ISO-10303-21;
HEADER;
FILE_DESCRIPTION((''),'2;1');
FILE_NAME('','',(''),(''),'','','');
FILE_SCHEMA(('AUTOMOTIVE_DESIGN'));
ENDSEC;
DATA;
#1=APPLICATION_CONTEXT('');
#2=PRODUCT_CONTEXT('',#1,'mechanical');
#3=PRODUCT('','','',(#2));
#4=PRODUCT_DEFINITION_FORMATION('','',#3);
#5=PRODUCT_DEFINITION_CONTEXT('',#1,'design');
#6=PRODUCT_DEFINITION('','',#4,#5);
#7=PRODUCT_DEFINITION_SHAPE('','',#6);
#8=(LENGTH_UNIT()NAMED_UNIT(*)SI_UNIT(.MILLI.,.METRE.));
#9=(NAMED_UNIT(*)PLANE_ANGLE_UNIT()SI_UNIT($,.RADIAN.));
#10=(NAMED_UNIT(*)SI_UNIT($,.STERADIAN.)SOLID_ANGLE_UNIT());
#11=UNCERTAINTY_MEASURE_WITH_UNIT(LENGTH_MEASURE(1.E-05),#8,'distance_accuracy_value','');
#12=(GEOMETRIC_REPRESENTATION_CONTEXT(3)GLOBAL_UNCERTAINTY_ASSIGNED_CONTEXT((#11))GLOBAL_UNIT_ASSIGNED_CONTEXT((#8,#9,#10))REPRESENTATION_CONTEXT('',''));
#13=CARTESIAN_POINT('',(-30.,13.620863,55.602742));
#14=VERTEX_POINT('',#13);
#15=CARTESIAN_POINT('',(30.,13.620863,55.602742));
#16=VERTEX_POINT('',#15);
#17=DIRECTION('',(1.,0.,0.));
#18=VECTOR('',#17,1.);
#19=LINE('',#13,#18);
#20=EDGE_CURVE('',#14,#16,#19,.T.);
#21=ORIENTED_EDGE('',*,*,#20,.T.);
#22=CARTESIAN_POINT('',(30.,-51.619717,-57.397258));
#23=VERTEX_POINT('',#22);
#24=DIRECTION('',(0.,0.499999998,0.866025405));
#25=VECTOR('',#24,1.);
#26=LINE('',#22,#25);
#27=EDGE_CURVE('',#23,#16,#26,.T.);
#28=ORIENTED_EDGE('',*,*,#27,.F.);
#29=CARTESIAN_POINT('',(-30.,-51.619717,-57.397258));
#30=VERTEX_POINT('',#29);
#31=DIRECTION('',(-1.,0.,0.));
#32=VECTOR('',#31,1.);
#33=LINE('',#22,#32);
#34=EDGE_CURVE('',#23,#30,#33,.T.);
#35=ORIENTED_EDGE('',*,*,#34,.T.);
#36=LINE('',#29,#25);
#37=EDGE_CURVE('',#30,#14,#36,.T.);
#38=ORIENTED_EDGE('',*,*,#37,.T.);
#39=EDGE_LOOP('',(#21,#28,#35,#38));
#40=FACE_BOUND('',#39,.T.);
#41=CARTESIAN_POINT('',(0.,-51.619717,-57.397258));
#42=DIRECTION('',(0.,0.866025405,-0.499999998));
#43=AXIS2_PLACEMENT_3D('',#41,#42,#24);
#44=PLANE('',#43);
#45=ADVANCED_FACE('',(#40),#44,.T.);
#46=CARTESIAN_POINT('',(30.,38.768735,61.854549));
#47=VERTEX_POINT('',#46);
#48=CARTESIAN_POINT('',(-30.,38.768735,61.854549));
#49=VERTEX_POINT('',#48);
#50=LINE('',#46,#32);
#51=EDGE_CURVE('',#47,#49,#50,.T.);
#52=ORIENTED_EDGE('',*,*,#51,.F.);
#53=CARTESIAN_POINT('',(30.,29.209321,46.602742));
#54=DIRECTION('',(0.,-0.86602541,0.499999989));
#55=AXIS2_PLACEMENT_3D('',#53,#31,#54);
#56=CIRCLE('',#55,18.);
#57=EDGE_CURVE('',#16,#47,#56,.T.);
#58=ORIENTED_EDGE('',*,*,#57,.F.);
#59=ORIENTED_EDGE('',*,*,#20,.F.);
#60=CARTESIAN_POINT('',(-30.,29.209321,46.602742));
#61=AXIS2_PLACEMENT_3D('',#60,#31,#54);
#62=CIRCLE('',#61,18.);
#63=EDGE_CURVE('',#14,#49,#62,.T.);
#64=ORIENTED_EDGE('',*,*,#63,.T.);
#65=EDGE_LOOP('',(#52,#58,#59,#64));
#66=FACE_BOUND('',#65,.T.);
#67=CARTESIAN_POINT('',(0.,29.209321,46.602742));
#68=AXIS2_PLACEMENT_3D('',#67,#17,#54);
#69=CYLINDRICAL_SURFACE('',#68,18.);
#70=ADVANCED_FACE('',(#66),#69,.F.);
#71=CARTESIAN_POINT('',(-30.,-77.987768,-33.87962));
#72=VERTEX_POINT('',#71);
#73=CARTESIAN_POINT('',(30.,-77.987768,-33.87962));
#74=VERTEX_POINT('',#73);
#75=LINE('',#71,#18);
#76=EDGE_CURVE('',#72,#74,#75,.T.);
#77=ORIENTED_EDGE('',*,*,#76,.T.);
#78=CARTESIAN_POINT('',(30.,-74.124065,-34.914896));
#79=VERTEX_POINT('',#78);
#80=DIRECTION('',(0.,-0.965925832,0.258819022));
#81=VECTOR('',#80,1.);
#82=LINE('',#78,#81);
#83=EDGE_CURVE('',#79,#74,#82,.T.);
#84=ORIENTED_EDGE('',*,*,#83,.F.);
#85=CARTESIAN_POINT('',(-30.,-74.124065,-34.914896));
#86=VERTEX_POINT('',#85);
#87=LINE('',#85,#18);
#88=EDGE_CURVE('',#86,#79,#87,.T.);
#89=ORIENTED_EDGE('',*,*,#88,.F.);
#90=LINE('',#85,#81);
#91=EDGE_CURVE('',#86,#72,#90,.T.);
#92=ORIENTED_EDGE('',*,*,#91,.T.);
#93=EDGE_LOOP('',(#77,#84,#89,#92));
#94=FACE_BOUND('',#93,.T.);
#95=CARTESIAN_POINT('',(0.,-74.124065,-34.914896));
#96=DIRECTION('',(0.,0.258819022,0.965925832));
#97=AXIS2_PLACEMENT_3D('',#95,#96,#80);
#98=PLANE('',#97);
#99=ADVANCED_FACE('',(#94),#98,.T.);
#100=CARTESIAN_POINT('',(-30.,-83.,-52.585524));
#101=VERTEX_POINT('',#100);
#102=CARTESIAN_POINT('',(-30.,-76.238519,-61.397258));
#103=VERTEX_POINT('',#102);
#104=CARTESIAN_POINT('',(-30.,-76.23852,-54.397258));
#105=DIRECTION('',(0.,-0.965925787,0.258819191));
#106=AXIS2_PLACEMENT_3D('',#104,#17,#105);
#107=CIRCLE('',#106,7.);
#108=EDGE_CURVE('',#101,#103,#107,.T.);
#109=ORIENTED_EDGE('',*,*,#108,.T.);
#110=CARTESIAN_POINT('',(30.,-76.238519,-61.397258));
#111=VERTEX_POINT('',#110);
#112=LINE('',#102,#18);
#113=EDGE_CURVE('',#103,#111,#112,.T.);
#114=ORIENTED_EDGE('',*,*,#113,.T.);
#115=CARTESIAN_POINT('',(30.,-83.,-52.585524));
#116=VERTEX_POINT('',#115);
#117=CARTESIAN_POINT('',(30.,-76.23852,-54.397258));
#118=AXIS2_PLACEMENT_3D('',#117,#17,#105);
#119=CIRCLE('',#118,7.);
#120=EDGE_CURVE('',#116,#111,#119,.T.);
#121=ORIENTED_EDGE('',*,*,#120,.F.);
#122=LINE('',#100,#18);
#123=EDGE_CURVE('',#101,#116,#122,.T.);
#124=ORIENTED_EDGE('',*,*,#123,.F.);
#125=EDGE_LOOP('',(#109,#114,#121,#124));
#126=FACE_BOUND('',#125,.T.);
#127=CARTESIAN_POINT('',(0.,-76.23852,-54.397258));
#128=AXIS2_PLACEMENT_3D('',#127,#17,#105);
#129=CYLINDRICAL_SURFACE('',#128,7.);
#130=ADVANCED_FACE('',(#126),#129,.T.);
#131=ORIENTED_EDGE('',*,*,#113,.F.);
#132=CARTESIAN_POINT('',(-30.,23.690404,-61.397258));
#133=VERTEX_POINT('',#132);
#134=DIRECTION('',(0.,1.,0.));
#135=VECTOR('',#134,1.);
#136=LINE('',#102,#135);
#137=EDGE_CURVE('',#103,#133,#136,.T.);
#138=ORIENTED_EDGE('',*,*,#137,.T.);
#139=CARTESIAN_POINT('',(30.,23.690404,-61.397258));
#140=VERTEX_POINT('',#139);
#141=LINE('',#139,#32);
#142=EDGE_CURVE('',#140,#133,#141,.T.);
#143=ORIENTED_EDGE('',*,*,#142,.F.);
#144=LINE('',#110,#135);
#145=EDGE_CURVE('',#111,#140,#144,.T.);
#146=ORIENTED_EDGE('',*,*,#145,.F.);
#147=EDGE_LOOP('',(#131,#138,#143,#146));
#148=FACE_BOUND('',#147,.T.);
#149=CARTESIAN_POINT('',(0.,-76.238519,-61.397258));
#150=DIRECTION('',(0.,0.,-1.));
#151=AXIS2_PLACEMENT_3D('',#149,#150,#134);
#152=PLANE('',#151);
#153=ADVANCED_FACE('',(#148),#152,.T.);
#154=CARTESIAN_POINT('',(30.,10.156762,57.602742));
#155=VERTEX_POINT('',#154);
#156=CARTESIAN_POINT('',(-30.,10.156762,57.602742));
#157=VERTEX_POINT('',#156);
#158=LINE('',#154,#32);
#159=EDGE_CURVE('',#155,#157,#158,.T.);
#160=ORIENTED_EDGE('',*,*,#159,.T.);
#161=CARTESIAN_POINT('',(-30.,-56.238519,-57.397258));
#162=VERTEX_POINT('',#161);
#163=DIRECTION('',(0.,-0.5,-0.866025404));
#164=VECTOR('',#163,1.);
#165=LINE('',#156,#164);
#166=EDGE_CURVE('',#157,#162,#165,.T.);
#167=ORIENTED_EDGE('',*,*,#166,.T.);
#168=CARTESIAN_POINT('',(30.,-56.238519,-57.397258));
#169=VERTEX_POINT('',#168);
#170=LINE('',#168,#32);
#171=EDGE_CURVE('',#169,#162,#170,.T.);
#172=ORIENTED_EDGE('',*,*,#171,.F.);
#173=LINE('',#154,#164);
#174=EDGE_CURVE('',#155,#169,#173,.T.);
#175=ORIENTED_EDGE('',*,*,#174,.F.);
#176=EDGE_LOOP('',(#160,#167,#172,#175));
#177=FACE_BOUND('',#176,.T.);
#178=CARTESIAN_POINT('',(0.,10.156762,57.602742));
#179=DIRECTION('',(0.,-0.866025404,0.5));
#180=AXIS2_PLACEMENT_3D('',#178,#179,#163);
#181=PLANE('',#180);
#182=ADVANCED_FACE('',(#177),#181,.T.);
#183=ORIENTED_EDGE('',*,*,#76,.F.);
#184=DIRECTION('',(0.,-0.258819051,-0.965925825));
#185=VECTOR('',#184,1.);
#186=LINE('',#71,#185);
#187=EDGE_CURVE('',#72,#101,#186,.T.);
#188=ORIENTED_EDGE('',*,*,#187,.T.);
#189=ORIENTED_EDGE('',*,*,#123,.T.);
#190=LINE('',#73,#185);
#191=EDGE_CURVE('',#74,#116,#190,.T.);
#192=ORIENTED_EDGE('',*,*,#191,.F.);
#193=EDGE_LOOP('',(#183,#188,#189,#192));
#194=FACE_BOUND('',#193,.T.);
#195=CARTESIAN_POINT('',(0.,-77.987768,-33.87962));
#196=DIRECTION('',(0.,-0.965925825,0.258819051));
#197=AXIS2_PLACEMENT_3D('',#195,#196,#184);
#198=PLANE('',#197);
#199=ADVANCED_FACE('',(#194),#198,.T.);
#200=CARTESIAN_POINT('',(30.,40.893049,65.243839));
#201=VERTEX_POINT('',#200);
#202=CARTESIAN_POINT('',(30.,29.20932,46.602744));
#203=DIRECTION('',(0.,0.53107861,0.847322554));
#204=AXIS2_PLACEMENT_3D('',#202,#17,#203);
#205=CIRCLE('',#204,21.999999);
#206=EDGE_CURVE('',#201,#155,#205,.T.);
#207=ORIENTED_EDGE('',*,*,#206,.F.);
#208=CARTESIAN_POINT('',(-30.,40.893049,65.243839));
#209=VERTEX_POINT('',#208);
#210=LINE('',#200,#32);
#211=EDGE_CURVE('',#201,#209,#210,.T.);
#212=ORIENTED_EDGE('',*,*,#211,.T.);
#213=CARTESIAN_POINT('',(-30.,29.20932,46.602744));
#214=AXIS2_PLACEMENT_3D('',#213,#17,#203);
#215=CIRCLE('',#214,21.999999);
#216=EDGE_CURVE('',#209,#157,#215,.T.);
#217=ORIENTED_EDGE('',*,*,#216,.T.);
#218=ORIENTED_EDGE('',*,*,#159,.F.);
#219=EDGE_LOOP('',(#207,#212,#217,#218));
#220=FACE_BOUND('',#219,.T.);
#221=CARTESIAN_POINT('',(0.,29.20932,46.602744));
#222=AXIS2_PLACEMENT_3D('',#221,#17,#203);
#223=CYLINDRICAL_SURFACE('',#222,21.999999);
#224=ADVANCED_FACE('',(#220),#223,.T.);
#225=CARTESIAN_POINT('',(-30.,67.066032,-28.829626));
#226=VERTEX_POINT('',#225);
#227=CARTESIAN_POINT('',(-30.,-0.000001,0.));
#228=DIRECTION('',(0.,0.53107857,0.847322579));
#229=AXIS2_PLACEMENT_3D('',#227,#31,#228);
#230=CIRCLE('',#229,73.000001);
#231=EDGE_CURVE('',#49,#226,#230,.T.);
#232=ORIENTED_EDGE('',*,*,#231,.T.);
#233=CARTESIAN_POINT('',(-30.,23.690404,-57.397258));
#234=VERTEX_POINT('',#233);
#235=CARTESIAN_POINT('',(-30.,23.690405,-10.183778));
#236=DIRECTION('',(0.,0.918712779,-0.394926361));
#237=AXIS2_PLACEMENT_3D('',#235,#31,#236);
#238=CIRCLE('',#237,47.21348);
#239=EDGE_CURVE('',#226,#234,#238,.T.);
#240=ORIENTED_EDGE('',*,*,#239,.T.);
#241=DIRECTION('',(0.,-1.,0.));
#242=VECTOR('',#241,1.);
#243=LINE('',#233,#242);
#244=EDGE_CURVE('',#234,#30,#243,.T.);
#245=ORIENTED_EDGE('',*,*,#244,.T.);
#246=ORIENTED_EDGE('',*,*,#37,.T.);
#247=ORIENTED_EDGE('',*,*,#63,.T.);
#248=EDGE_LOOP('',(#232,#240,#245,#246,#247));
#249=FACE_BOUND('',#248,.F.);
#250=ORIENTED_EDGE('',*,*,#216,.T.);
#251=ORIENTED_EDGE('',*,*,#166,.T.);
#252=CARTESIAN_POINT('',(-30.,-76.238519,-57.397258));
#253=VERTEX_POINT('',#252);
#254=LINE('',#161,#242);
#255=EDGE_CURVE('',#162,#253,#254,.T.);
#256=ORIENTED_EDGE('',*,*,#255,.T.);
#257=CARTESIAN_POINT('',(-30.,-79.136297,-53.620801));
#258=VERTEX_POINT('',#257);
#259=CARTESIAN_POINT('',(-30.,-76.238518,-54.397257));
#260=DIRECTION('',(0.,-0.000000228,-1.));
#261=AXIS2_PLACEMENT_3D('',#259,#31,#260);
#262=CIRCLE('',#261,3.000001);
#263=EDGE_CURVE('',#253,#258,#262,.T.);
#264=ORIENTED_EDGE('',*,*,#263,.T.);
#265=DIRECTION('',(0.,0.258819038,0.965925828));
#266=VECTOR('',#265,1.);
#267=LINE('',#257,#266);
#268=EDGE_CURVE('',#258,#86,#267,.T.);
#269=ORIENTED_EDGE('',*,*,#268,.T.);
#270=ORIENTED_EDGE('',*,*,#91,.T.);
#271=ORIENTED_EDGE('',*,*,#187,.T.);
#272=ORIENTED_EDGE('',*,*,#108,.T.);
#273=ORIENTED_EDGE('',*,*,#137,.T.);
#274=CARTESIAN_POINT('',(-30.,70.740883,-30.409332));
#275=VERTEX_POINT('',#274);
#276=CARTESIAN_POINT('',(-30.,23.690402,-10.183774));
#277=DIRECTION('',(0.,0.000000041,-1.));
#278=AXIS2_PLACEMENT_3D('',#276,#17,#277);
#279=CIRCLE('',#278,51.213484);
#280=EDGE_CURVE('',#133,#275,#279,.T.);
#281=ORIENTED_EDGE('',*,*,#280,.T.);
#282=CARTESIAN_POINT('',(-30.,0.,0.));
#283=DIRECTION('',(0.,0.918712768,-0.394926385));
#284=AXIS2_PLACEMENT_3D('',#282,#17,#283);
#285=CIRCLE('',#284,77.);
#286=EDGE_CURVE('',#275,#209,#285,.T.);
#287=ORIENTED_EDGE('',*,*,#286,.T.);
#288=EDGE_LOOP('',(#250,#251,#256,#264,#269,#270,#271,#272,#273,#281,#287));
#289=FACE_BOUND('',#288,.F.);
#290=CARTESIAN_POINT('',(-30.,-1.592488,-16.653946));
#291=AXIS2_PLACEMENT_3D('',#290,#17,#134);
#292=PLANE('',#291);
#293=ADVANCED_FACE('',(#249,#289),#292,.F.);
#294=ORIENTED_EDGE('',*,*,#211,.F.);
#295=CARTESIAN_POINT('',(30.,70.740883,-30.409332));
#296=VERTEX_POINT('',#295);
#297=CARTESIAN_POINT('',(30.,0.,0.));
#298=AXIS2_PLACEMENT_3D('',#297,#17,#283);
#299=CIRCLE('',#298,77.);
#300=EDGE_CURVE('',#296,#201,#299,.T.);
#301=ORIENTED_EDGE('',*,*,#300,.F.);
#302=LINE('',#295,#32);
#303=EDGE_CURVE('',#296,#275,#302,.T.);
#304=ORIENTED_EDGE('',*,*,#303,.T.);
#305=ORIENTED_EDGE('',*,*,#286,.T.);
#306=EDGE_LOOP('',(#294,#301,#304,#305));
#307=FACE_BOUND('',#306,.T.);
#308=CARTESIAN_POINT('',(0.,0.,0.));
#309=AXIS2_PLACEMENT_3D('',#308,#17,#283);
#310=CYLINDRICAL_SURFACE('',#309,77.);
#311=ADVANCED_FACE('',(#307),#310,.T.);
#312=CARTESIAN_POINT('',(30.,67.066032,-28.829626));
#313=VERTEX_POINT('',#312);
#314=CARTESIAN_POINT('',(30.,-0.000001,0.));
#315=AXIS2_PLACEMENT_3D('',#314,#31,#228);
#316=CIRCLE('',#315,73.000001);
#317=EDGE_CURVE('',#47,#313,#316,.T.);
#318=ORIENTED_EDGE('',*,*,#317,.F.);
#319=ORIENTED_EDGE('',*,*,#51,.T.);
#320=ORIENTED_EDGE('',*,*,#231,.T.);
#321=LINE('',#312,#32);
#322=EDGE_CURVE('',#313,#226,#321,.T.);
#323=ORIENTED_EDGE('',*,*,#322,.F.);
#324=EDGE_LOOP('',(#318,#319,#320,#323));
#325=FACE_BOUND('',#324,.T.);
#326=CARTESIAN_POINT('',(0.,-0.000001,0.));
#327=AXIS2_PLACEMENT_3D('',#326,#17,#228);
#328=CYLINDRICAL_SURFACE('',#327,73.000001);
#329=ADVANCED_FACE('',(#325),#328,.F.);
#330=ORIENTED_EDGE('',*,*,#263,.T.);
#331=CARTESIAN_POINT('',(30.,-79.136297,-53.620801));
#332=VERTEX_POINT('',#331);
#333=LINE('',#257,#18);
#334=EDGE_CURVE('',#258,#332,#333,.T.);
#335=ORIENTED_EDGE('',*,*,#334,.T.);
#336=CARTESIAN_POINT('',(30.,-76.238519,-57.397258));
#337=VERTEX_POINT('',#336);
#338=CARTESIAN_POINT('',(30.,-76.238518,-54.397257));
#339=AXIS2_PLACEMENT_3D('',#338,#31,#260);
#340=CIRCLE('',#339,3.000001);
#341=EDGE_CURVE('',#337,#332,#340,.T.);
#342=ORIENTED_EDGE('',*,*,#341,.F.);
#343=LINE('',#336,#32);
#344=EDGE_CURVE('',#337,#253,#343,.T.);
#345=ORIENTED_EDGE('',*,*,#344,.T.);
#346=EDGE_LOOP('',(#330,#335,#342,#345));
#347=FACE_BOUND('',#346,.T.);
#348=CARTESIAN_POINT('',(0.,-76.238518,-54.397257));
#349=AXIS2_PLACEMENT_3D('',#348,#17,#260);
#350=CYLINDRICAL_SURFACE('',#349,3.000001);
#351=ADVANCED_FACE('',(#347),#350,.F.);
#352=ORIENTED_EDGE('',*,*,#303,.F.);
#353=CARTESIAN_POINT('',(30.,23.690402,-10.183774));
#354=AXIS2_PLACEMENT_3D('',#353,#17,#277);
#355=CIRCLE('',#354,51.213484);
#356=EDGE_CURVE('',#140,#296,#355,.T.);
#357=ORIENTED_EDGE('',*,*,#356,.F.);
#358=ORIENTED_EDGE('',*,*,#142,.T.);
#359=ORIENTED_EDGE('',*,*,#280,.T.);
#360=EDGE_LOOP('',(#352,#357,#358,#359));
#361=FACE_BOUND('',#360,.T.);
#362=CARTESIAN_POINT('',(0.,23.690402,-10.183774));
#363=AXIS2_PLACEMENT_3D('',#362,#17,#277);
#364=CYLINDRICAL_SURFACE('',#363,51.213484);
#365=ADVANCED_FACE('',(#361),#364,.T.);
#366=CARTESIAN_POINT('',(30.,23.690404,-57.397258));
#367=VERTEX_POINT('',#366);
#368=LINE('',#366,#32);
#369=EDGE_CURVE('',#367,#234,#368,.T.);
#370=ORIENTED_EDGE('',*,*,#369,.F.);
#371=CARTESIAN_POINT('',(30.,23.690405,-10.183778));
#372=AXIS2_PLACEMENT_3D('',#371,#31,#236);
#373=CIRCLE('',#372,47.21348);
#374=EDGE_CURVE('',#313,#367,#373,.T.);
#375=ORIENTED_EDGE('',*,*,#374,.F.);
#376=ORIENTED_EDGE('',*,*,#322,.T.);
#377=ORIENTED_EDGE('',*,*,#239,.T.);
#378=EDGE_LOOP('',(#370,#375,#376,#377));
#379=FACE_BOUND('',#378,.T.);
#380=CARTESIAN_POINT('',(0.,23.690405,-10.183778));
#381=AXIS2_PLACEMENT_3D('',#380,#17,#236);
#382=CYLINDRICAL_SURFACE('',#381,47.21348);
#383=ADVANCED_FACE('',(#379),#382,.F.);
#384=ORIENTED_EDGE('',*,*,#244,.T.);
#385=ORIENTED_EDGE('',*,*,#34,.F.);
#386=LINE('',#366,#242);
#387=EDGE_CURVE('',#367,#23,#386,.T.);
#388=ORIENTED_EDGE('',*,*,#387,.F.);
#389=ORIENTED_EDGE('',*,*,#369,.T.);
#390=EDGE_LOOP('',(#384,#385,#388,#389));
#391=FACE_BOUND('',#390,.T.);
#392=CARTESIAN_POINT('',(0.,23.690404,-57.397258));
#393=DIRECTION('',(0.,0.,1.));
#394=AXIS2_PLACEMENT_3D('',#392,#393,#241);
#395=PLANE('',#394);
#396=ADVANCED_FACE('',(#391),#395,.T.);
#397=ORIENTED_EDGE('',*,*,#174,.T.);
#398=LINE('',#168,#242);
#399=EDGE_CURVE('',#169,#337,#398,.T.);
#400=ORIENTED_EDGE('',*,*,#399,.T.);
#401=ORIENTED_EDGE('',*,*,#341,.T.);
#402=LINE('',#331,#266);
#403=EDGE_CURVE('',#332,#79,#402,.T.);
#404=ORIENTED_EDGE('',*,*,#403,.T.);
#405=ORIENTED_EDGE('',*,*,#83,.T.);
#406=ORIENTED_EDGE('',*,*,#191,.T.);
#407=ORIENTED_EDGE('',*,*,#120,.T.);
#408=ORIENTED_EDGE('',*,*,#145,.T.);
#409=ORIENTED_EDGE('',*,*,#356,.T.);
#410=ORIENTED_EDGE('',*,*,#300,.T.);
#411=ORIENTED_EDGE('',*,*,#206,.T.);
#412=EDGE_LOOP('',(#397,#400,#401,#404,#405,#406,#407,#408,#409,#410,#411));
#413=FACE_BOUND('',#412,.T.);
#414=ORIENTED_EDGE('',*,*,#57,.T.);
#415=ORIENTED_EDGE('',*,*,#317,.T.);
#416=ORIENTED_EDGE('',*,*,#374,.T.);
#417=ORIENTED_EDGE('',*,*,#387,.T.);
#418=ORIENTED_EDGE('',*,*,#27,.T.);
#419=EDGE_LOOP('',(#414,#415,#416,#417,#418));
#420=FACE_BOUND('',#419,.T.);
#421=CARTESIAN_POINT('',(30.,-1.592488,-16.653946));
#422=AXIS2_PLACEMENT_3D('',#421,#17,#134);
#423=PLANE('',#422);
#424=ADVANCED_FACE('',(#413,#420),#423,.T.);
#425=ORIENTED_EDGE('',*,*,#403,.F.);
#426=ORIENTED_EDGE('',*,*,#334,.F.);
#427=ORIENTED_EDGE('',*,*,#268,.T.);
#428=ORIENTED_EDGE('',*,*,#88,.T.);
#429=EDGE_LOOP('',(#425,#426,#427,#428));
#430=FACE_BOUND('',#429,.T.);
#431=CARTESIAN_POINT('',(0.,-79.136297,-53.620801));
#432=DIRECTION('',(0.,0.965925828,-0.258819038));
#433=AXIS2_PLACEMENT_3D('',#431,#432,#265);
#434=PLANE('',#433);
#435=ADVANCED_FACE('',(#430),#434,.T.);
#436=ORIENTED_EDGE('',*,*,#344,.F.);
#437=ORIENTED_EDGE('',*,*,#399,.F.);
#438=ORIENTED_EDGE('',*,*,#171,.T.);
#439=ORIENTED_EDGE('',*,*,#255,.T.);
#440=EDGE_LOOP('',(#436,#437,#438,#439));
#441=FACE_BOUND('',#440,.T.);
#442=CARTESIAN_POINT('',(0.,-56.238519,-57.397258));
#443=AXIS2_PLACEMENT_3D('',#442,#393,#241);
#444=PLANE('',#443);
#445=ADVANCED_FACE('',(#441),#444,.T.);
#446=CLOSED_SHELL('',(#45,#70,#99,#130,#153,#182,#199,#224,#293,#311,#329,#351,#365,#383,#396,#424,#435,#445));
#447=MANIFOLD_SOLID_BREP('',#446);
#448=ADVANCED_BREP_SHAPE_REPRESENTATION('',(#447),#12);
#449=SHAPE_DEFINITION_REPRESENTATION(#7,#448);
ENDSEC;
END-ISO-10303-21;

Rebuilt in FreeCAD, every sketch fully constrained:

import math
import FreeCAD as App
import Part
import Sketcher
Q = App.Units.Quantity

doc = App.newDocument("Part")
body = doc.addObject("PartDesign::Body", "Body")

# Sketch on YZ plane
sketch1 = body.newObject("Sketcher::SketchObject", "Sketch")
sketch1.AttachmentSupport = (doc.getObject("YZ_Plane"), [""])
sketch1.MapMode = "FlatFace"
sketch1.addGeometry(Part.ArcOfCircle(Part.Circle(App.Vector(-76.2, -54.4, 0), App.Vector(0, 0, 1), 3), math.radians(165), math.radians(270)), False)
sketch1.addGeometry(Part.LineSegment(App.Vector(-79.1, -53.6, 0), App.Vector(-74.1, -34.9, 0)), False)
sketch1.addGeometry(Part.LineSegment(App.Vector(-74.1, -34.9, 0), App.Vector(-78, -33.9, 0)), False)
sketch1.addGeometry(Part.LineSegment(App.Vector(-78, -33.9, 0), App.Vector(-83, -52.6, 0)), False)
sketch1.addGeometry(Part.ArcOfCircle(Part.Circle(App.Vector(-76.2, -54.4, 0), App.Vector(0, 0, 1), 7), math.radians(165), math.radians(270)), False)
sketch1.addGeometry(Part.LineSegment(App.Vector(-76.2, -61.4, 0), App.Vector(23.7, -61.4, 0)), False)
sketch1.addGeometry(Part.ArcOfCircle(Part.Circle(App.Vector(23.7, -10.2, 0), App.Vector(0, 0, 1), 51.2), math.radians(-90), math.radians(-23)), False)
sketch1.addGeometry(Part.ArcOfCircle(Part.Circle(App.Vector(0, 0, 0), App.Vector(0, 0, 1), 77), math.radians(-23), math.radians(58)), False)
sketch1.addGeometry(Part.ArcOfCircle(Part.Circle(App.Vector(29.2, 46.6, 0), App.Vector(0, 0, 1), 22), math.radians(58), math.radians(150)), False)
sketch1.addGeometry(Part.LineSegment(App.Vector(10.2, 57.6, 0), App.Vector(-56.2, -57.4, 0)), False)
sketch1.addGeometry(Part.LineSegment(App.Vector(-56.2, -57.4, 0), App.Vector(-76.2, -57.4, 0)), False)
sketch1.addGeometry(Part.LineSegment(App.Vector(-51.6, -57.4, 0), App.Vector(13.6, 55.6, 0)), False)
sketch1.addGeometry(Part.ArcOfCircle(Part.Circle(App.Vector(29.2, 46.6, 0), App.Vector(0, 0, 1), 18), math.radians(58), math.radians(150)), False)
sketch1.addGeometry(Part.ArcOfCircle(Part.Circle(App.Vector(0, 0, 0), App.Vector(0, 0, 1), 73), math.radians(-23), math.radians(58)), False)
sketch1.addGeometry(Part.ArcOfCircle(Part.Circle(App.Vector(23.7, -10.2, 0), App.Vector(0, 0, 1), 47.2), math.radians(-90), math.radians(-23)), False)
sketch1.addGeometry(Part.LineSegment(App.Vector(23.7, -57.4, 0), App.Vector(-51.6, -57.4, 0)), False)
sketch1.addConstraint(Sketcher.Constraint("Tangent", 0, 1, 1, 1))
sketch1.addConstraint(Sketcher.Constraint("Coincident", 1, 2, 2, 1))
sketch1.addConstraint(Sketcher.Constraint("Coincident", 2, 2, 3, 1))
sketch1.addConstraint(Sketcher.Constraint("Tangent", 3, 2, 4, 1))
sketch1.addConstraint(Sketcher.Constraint("Tangent", 4, 2, 5, 1))
sketch1.addConstraint(Sketcher.Constraint("Tangent", 5, 2, 6, 1))
sketch1.addConstraint(Sketcher.Constraint("Tangent", 6, 2, 7, 1))
sketch1.addConstraint(Sketcher.Constraint("Tangent", 7, 2, 8, 1))
sketch1.addConstraint(Sketcher.Constraint("Tangent", 8, 2, 9, 1))
sketch1.addConstraint(Sketcher.Constraint("Coincident", 9, 2, 10, 1))
sketch1.addConstraint(Sketcher.Constraint("Tangent", 10, 2, 0, 2))
sketch1.addConstraint(Sketcher.Constraint("Tangent", 11, 2, 12, 2))
sketch1.addConstraint(Sketcher.Constraint("Tangent", 12, 1, 13, 2))
sketch1.addConstraint(Sketcher.Constraint("Tangent", 13, 1, 14, 2))
sketch1.addConstraint(Sketcher.Constraint("Tangent", 14, 1, 15, 1))
sketch1.addConstraint(Sketcher.Constraint("Coincident", 15, 2, 11, 1))
sketch1.addConstraint(Sketcher.Constraint("Horizontal", 5))
sketch1.addConstraint(Sketcher.Constraint("Horizontal", 10))
sketch1.addConstraint(Sketcher.Constraint("Horizontal", 15))
sketch1.addConstraint(Sketcher.Constraint("Coincident", 7, 3, -1, 1))
sketch1.addConstraint(Sketcher.Constraint("Coincident", 13, 3, -1, 1))
sketch1.addConstraint(Sketcher.Constraint("Coincident", 4, 3, 0, 3))
sketch1.addConstraint(Sketcher.Constraint("Coincident", 12, 3, 8, 3))
sketch1.addConstraint(Sketcher.Constraint("Coincident", 14, 3, 6, 3))
sketch1.addConstraint(Sketcher.Constraint("Perpendicular", 1, 2))
sketch1.addConstraint(Sketcher.Constraint("Perpendicular", 2, 3))
sketch1.addConstraint(Sketcher.Constraint("Parallel", 9, 11))
sketch1.addConstraint(Sketcher.Constraint("Horizontal", 10, 2, 14, 1))
sketch1.addConstraint(Sketcher.Constraint("Radius", 0, 3.000001))
sketch1.addConstraint(Sketcher.Constraint("Radius", 4, 7.0))
sketch1.addConstraint(Sketcher.Constraint("Radius", 7, 77.0))
sketch1.addConstraint(Sketcher.Constraint("Radius", 8, 21.999999))
sketch1.addConstraint(Sketcher.Constraint("DistanceX", 10, 2, 10, 1, 20.0))
sketch1.addConstraint(Sketcher.Constraint("Angle", 1, Q("75 deg")))
sketch1.addConstraint(Sketcher.Constraint("Angle", 9, Q("-120 deg")))
sketch1.addConstraint(Sketcher.Constraint("DistanceX", 3, 2, -1, 1, 83.0))
sketch1.addConstraint(Sketcher.Constraint("DistanceY", 0, 3, 8, 3, 101.000001))
sketch1.addConstraint(Sketcher.Constraint("Radius", 14, 47.21348))
sketch1.addConstraint(Sketcher.Constraint("DistanceX", 2, 2, -1, 1, 77.987768))
pad1 = body.newObject("PartDesign::Pad", "Pad")
pad1.Profile = sketch1
pad1.Length = 60
pad1.Midplane = True

doc.recompute()
